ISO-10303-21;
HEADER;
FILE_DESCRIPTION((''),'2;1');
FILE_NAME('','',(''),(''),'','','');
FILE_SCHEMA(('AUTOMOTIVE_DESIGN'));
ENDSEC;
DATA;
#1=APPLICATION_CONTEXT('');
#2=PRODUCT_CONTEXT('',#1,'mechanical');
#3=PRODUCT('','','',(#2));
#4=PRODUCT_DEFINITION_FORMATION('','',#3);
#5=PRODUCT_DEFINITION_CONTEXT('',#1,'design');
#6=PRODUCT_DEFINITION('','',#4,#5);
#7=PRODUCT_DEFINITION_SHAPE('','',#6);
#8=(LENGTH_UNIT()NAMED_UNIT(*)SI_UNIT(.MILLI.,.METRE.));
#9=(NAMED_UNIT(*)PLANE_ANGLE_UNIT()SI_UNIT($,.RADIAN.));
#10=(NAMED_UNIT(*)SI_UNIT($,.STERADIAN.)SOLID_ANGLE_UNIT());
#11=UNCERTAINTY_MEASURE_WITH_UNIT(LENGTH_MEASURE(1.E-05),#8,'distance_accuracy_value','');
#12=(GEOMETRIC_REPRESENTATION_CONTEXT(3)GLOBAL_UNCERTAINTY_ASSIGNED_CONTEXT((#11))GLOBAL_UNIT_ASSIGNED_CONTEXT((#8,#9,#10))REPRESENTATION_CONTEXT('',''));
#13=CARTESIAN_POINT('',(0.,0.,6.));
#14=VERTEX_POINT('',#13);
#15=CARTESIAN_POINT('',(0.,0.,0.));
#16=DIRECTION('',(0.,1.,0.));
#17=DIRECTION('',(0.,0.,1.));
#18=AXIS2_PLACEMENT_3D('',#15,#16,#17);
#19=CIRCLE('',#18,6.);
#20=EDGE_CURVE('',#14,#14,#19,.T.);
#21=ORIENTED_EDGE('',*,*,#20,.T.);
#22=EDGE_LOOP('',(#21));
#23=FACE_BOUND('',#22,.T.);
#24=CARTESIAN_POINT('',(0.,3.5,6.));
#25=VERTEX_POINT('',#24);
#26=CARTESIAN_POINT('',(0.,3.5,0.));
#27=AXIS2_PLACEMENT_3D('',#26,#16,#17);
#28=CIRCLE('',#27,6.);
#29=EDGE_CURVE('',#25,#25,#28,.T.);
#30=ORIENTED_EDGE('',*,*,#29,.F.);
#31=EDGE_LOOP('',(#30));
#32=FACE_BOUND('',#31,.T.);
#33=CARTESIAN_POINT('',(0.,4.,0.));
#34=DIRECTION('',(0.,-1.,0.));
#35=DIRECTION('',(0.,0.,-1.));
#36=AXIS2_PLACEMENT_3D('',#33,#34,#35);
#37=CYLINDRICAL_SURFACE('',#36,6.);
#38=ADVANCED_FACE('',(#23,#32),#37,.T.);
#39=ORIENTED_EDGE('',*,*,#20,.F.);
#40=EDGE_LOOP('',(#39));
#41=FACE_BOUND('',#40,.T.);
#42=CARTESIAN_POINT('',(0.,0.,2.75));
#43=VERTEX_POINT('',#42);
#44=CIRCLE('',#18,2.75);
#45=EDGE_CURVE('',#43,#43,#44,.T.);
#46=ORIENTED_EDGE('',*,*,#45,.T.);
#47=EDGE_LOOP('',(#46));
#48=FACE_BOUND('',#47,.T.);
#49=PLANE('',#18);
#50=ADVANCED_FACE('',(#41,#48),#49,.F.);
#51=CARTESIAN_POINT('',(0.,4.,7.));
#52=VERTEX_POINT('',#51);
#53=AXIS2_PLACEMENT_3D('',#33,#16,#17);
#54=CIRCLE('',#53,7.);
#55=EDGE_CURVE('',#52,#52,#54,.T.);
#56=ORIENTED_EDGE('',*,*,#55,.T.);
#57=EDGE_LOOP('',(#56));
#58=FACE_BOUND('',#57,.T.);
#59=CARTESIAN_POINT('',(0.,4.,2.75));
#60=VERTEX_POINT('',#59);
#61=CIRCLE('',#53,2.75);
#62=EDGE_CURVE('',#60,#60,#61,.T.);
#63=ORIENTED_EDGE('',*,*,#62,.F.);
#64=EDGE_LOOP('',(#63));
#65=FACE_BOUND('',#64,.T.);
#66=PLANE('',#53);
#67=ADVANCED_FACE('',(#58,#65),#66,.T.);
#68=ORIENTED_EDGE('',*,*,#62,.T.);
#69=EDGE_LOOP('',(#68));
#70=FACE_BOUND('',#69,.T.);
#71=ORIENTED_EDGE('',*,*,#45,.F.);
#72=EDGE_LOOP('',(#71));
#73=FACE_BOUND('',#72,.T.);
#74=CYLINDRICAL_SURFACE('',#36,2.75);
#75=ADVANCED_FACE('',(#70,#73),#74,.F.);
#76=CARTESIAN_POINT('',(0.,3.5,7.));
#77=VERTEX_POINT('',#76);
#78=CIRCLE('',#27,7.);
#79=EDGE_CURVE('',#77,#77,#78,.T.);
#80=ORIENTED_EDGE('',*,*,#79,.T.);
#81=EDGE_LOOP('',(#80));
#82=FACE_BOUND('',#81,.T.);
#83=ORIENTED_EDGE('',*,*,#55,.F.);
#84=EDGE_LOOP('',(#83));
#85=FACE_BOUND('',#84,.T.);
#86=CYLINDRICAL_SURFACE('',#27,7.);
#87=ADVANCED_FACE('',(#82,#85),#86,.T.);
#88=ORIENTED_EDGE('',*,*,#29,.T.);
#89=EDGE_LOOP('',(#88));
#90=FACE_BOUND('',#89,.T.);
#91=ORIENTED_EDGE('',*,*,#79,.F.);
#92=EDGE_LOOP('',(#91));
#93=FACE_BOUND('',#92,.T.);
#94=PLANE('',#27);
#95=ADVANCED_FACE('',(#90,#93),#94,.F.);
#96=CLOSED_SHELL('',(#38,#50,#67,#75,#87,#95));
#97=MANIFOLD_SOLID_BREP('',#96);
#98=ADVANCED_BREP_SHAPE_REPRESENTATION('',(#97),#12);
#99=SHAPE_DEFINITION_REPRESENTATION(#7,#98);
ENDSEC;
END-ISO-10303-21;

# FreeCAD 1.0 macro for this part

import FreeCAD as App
import Part
import Sketcher

V = App.Vector
Q = App.Units.Quantity

doc = App.newDocument("Part")
body = doc.addObject("PartDesign::Body", "Body")

# Sketch on XZ plane
sketch1 = body.newObject("Sketcher::SketchObject", "Sketch")
sketch1.AttachmentSupport = (doc.getObject("XZ_Plane"), [""])
sketch1.MapMode = "FlatFace"
sketch1.addGeometry(Part.Circle(V(0, 0, 0), V(0, 0, 1), 6), False)
sketch1.addGeometry(Part.Circle(V(0, 0, 0), V(0, 0, 1), 2.8), False)
sketch1.addConstraint(Sketcher.Constraint("Coincident", 0, 3, -1, 1))
sketch1.addConstraint(Sketcher.Constraint("Coincident", 1, 3, -1, 1))
sketch1.addConstraint(Sketcher.Constraint("Diameter", 0, Q("12 mm")))
sketch1.addConstraint(Sketcher.Constraint("Diameter", 1, Q("5.5 mm")))
pad1 = body.newObject("PartDesign::Pad", "Pad")
pad1.Profile = sketch1
pad1.Length = 4
pad1.Reversed = True

# Sketch on XZ plane
sketch2 = body.newObject("Sketcher::SketchObject", "Sketch001")
sketch2.AttachmentSupport = (doc.getObject("XZ_Plane"), [""])
sketch2.MapMode = "FlatFace"
sketch2.AttachmentOffset = App.Placement(V(0, 0, -3.5), App.Rotation())
sketch2.addGeometry(Part.Circle(V(0, 0, 0), V(0, 0, 1), 7), False)
sketch2.addGeometry(Part.Circle(V(0, 0, 0), V(0, 0, 1), 2.8), False)
sketch2.addConstraint(Sketcher.Constraint("Coincident", 0, 3, -1, 1))
sketch2.addConstraint(Sketcher.Constraint("Coincident", 1, 3, -1, 1))
sketch2.addConstraint(Sketcher.Constraint("Diameter", 0, Q("14 mm")))
sketch2.addConstraint(Sketcher.Constraint("Diameter", 1, Q("5.5 mm")))
pad2 = body.newObject("PartDesign::Pad", "Pad001")
pad2.Profile = sketch2
pad2.Length = 0.5
pad2.Reversed = True

doc.recompute()
